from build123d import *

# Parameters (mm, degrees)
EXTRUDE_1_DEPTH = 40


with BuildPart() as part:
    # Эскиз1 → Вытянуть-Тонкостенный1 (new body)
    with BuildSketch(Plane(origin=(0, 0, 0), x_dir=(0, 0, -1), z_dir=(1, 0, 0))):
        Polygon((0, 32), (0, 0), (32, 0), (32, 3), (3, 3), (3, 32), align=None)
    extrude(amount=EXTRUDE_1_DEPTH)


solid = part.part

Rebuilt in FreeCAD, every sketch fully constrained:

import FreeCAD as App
import Part
import Sketcher

V = App.Vector


def add_polygon(sketch, points):
    """Adds a closed chain of lines whose ends are joined by coincident constraints."""
    first, n = sketch.GeometryCount, len(points)
    for a, b in zip(points, points[1:] + points[:1]):
        sketch.addGeometry(Part.LineSegment(App.Vector(*a, 0), App.Vector(*b, 0)), False)
    for i in range(n):
        sketch.addConstraint(Sketcher.Constraint("Coincident", first + i, 2, first + (i + 1) % n, 1))

doc = App.newDocument("Part")
body = doc.addObject("PartDesign::Body", "Body")

sketch1 = doc.addObject("Sketcher::SketchObject", "Sketch")
body.addObject(sketch1)
sketch1.AttachmentSupport = (doc.YZ_Plane, [""])
sketch1.MapMode = "FlatFace"
add_polygon(sketch1, [(32, 0), (0, 0), (0, -32), (3, -32), (3, -3), (32, -3)])
sketch1.addConstraint(Sketcher.Constraint("Horizontal", 0))
sketch1.addConstraint(Sketcher.Constraint("Vertical", 1))
sketch1.addConstraint(Sketcher.Constraint("Horizontal", 2))
sketch1.addConstraint(Sketcher.Constraint("Vertical", 3))
sketch1.addConstraint(Sketcher.Constraint("Horizontal", 4))
sketch1.addConstraint(Sketcher.Constraint("Vertical", 5))
sketch1.addConstraint(Sketcher.Constraint("Coincident", 0, 2, -1, 1))
sketch1.addConstraint(Sketcher.Constraint("Equal", 0, 1))
sketch1.addConstraint(Sketcher.Constraint("Equal", 4, 3))
sketch1.addConstraint(Sketcher.Constraint("DistanceX", 0, 2, 0, 1, 32.0))
sketch1.addConstraint(Sketcher.Constraint("DistanceX", 2, 1, 2, 2, 3.0))
pad1 = doc.addObject("PartDesign::Pad", "Pad")
body.addObject(pad1)
pad1.Profile = sketch1
pad1.Length = 40

doc.recompute()
